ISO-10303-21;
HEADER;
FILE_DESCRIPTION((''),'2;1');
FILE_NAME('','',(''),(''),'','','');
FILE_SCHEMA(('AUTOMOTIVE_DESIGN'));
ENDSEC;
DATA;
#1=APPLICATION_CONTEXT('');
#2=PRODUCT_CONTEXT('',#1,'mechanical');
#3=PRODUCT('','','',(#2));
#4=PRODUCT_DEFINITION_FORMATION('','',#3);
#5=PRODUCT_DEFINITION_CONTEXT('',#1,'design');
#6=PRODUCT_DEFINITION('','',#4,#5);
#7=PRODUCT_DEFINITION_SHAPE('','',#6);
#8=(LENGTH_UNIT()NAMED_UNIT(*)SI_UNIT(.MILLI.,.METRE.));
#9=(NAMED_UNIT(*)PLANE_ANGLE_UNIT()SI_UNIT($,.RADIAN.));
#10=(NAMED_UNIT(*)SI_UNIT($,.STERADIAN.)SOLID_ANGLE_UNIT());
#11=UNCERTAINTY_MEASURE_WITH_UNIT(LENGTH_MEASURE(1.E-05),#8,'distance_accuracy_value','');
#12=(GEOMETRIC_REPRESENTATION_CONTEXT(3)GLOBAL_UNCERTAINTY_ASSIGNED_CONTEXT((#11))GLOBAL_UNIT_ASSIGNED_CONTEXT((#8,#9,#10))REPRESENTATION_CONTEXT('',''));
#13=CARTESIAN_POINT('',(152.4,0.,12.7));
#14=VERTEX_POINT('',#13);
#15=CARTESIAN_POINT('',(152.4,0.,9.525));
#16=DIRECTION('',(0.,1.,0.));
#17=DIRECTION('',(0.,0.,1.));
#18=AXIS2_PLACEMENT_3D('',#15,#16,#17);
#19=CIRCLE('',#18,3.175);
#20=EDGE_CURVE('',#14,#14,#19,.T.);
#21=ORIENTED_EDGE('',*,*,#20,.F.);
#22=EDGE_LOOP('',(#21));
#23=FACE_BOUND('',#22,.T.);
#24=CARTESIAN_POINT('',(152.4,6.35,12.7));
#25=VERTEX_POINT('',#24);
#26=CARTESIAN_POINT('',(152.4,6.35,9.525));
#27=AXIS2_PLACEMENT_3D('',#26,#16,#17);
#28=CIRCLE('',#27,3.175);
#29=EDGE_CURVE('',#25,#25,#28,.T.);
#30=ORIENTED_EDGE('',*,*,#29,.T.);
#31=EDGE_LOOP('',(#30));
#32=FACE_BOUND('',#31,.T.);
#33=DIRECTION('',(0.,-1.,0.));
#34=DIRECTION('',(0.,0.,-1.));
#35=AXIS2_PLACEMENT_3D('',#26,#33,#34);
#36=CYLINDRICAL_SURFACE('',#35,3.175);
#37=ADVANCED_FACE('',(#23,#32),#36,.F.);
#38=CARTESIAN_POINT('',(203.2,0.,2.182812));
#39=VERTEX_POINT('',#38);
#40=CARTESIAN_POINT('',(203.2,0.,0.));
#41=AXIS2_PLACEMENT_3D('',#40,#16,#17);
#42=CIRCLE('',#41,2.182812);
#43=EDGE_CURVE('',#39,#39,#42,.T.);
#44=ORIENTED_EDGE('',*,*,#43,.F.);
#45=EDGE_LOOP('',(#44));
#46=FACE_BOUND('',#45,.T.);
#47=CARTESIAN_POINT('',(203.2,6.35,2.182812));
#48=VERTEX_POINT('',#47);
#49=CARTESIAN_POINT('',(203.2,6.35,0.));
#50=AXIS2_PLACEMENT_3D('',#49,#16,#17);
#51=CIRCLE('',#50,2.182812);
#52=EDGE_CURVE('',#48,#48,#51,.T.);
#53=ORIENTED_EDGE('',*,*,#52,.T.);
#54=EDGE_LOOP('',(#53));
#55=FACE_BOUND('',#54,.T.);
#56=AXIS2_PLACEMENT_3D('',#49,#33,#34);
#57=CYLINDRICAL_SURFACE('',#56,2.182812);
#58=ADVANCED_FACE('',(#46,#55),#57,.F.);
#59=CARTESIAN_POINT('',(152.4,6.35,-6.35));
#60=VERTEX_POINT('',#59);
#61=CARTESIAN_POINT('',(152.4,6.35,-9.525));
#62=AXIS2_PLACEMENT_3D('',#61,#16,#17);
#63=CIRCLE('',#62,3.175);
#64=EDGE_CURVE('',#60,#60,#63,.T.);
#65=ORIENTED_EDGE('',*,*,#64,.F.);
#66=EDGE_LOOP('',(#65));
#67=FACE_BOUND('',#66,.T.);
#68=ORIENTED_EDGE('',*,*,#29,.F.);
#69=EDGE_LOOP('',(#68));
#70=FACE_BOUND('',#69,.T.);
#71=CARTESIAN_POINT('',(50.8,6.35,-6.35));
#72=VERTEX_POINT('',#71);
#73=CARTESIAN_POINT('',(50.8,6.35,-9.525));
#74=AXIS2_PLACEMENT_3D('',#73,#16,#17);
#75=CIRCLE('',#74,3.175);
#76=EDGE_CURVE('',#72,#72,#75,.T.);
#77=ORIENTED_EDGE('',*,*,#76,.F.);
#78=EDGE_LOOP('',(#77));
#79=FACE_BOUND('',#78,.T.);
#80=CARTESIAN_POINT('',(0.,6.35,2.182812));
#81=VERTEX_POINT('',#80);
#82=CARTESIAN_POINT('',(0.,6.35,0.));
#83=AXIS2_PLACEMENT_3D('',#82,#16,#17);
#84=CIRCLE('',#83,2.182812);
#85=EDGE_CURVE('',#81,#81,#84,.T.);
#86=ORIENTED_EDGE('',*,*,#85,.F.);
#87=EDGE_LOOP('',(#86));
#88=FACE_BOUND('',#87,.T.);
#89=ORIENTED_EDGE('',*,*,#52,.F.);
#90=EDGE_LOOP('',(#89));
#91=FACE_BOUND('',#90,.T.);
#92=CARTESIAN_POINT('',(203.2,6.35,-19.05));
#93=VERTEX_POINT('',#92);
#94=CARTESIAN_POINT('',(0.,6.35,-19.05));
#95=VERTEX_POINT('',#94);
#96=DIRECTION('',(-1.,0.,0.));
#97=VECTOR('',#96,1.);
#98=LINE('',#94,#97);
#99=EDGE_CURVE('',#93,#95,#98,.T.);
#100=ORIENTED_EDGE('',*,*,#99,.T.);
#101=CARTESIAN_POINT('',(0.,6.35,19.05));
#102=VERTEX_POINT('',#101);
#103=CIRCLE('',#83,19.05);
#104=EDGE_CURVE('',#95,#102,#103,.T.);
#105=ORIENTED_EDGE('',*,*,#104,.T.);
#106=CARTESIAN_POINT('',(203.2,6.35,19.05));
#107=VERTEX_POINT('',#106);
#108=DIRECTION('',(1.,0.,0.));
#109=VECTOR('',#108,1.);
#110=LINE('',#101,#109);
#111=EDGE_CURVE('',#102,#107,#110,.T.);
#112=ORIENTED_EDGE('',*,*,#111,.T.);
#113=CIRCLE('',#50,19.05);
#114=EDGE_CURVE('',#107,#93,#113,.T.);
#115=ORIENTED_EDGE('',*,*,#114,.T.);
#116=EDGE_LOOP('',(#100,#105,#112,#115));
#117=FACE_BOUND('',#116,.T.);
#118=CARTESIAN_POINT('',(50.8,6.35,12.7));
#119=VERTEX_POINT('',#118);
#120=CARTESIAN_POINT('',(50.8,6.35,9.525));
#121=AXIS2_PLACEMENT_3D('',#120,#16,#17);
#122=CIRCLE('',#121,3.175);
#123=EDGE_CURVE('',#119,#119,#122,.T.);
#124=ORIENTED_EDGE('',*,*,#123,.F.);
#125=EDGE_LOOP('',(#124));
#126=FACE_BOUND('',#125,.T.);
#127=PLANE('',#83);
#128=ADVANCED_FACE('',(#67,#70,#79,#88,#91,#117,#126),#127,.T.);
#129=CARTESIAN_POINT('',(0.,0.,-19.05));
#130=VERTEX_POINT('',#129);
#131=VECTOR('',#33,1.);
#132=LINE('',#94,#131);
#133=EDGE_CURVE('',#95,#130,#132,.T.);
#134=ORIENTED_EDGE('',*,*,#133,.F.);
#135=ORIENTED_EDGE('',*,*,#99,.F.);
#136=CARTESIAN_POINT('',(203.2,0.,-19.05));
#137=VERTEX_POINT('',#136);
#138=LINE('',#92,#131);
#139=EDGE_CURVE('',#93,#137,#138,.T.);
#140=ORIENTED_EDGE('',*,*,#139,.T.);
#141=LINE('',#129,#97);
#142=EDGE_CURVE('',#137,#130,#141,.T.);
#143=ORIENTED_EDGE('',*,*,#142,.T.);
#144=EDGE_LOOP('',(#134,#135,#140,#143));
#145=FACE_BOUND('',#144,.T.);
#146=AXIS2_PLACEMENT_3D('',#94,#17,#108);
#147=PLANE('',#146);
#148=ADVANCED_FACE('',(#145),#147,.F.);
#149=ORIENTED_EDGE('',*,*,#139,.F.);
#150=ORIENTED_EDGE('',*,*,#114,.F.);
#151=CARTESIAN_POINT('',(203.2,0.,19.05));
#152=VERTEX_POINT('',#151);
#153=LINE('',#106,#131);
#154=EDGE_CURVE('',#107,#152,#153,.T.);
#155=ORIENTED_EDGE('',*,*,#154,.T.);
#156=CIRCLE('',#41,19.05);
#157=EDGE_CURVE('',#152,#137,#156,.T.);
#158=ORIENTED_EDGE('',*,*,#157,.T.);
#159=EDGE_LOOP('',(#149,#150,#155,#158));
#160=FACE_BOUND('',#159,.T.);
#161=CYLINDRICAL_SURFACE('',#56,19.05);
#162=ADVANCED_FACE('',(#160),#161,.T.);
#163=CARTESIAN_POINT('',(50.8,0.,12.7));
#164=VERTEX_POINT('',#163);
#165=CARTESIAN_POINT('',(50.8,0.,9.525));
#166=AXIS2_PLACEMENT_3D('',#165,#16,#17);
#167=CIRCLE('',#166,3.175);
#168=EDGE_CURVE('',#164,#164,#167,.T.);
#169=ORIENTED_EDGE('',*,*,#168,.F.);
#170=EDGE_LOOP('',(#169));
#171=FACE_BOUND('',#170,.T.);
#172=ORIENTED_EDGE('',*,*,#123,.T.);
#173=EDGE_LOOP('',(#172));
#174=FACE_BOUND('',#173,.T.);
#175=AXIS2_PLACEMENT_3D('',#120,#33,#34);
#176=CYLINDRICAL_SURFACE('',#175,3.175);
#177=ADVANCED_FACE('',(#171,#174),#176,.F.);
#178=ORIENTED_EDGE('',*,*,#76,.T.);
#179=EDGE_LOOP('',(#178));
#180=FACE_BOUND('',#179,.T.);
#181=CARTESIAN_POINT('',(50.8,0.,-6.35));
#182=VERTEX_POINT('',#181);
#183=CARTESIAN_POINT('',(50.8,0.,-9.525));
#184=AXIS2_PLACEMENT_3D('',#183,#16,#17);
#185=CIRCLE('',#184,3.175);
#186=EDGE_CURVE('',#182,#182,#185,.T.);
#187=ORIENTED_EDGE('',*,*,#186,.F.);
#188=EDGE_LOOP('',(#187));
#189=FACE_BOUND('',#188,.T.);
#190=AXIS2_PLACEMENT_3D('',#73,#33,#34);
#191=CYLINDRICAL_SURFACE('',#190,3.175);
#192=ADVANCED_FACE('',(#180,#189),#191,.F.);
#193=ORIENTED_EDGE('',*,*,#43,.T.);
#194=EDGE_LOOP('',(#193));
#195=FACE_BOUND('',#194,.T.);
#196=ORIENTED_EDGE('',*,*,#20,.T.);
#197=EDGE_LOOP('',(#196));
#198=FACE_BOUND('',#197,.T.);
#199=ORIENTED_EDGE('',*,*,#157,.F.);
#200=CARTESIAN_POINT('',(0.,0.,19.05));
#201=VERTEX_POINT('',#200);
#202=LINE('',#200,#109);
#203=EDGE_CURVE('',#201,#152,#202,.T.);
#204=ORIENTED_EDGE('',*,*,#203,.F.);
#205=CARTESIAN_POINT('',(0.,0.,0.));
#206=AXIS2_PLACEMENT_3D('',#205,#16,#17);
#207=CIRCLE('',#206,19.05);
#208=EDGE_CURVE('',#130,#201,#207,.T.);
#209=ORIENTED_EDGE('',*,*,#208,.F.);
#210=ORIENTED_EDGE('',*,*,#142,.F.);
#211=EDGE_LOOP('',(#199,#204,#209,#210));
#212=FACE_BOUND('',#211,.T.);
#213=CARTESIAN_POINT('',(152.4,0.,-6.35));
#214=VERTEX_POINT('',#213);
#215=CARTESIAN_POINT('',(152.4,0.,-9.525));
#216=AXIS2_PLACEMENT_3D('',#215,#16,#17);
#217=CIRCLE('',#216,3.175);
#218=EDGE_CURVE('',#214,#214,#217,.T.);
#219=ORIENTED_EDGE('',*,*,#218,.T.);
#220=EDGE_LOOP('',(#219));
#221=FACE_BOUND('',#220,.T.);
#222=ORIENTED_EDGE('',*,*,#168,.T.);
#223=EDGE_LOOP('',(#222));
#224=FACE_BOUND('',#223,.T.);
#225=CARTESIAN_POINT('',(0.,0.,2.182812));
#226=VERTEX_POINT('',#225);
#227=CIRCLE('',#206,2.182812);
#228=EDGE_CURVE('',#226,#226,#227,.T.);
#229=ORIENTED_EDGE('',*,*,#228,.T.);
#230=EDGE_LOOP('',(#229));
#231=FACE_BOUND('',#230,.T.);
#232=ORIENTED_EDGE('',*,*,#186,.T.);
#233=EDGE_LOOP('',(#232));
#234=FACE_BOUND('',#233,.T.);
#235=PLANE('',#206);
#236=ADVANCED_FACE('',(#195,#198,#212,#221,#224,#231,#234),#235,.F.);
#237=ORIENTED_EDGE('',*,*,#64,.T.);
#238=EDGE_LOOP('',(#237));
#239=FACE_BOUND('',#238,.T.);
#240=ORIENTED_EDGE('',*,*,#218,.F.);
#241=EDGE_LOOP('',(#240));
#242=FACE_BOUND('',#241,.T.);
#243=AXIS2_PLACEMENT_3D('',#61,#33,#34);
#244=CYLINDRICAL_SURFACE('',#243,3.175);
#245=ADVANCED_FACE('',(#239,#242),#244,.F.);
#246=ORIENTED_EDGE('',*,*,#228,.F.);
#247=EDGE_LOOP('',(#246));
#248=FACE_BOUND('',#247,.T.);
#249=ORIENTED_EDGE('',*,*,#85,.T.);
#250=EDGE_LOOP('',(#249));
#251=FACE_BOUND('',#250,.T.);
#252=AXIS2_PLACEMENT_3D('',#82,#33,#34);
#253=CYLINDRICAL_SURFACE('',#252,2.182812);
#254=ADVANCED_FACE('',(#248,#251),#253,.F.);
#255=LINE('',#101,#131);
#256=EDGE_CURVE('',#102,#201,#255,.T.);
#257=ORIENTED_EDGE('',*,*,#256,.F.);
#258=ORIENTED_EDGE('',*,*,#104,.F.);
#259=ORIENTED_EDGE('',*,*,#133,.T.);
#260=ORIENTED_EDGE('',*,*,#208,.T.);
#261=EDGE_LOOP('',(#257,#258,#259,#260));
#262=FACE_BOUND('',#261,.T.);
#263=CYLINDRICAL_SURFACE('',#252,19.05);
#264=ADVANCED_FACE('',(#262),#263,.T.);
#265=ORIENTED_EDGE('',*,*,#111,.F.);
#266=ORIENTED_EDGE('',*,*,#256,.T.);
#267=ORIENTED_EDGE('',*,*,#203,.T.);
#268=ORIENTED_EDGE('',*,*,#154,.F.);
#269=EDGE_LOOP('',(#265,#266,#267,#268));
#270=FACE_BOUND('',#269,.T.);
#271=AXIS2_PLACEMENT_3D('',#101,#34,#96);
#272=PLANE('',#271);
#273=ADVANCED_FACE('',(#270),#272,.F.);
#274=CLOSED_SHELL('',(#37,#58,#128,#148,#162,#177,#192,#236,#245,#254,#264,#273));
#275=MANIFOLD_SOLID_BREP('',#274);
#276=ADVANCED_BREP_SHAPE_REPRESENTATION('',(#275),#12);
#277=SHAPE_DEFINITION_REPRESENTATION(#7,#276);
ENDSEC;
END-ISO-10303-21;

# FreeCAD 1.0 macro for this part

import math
import FreeCAD as App
import Part
import Sketcher
from FreeCAD import Vector
Q = App.Units.Quantity

doc = App.newDocument("Part")
body = doc.addObject("PartDesign::Body", "Body")

# Sketch on XZ plane
sketch1 = body.newObject("Sketcher::SketchObject", "Sketch")
sketch1.AttachmentSupport = (doc.getObject("XZ_Plane"), [""])
sketch1.MapMode = "FlatFace"
sketch1.addGeometry([
    Part.LineSegment(Vector(203.2, -19.1, 0), Vector(0, -19.1, 0)),  # 0
    Part.ArcOfCircle(Part.Circle(Vector(0, 0, 0), Vector(0, 0, 1), 19.1), math.radians(90), math.radians(270)),  # 1
    Part.LineSegment(Vector(0, 19.1, 0), Vector(203.2, 19.1, 0)),  # 2
    Part.ArcOfCircle(Part.Circle(Vector(203.2, 0, 0), Vector(0, 0, 1), 19.1), math.radians(-90), math.radians(90)),  # 3
    Part.Circle(Vector(152.4, 9.5, 0), Vector(0, 0, 1), 3.2),  # 4
    Part.Circle(Vector(203.2, 0, 0), Vector(0, 0, 1), 2.2),  # 5
    Part.Circle(Vector(50.8, 9.5, 0), Vector(0, 0, 1), 3.2),  # 6
    Part.Circle(Vector(0, 0, 0), Vector(0, 0, 1), 2.2),  # 7
    Part.Circle(Vector(152.4, -9.5, 0), Vector(0, 0, 1), 3.2),  # 8
    Part.Circle(Vector(50.8, -9.5, 0), Vector(0, 0, 1), 3.2),  # 9
], False)
sketch1.addConstraint([
    Sketcher.Constraint("Tangent", 0, 2, 1, 2),
    Sketcher.Constraint("Tangent", 1, 1, 2, 1),
    Sketcher.Constraint("Tangent", 2, 2, 3, 2),
    Sketcher.Constraint("Tangent", 3, 1, 0, 1),
    Sketcher.Constraint("Horizontal", 0),
    Sketcher.Constraint("Horizontal", 2),
    Sketcher.Constraint("Coincident", 1, 3, -1, 1),
    Sketcher.Constraint("Coincident", 7, 3, -1, 1),
    Sketcher.Constraint("Coincident", 5, 3, 3, 3),
    Sketcher.Constraint("Equal", 4, 6),
    Sketcher.Constraint("Equal", 5, 7),
    Sketcher.Constraint("Equal", 6, 8),
    Sketcher.Constraint("Equal", 8, 9),
    Sketcher.Constraint("Symmetric", 4, 3, 8, 3, -1),
    Sketcher.Constraint("Symmetric", 6, 3, 9, 3, -1),
    Sketcher.Constraint("Horizontal", 4, 3, 6, 3),
    Sketcher.Constraint("Diameter", 4, Q("0.25 in")),
    Sketcher.Constraint("DistanceX", 0, 2, 0, 1, Q("8 in")),
    Sketcher.Constraint("Radius", 1, Q("0.75 in")),
    Sketcher.Constraint("Diameter", 5, Q("0.171875 in")),
    Sketcher.Constraint("DistanceX", -1, 1, 4, 3, Q("6 in")),
    Sketcher.Constraint("DistanceX", -1, 1, 6, 3, Q("2 in")),
    Sketcher.Constraint("DistanceY", 8, 3, 4, 3, Q("0.75 in")),
])
pad1 = body.newObject("PartDesign::Pad", "Pad")
pad1.Profile = sketch1
pad1.Length = Q("0.25 in")
pad1.Reversed = True

doc.recompute()
